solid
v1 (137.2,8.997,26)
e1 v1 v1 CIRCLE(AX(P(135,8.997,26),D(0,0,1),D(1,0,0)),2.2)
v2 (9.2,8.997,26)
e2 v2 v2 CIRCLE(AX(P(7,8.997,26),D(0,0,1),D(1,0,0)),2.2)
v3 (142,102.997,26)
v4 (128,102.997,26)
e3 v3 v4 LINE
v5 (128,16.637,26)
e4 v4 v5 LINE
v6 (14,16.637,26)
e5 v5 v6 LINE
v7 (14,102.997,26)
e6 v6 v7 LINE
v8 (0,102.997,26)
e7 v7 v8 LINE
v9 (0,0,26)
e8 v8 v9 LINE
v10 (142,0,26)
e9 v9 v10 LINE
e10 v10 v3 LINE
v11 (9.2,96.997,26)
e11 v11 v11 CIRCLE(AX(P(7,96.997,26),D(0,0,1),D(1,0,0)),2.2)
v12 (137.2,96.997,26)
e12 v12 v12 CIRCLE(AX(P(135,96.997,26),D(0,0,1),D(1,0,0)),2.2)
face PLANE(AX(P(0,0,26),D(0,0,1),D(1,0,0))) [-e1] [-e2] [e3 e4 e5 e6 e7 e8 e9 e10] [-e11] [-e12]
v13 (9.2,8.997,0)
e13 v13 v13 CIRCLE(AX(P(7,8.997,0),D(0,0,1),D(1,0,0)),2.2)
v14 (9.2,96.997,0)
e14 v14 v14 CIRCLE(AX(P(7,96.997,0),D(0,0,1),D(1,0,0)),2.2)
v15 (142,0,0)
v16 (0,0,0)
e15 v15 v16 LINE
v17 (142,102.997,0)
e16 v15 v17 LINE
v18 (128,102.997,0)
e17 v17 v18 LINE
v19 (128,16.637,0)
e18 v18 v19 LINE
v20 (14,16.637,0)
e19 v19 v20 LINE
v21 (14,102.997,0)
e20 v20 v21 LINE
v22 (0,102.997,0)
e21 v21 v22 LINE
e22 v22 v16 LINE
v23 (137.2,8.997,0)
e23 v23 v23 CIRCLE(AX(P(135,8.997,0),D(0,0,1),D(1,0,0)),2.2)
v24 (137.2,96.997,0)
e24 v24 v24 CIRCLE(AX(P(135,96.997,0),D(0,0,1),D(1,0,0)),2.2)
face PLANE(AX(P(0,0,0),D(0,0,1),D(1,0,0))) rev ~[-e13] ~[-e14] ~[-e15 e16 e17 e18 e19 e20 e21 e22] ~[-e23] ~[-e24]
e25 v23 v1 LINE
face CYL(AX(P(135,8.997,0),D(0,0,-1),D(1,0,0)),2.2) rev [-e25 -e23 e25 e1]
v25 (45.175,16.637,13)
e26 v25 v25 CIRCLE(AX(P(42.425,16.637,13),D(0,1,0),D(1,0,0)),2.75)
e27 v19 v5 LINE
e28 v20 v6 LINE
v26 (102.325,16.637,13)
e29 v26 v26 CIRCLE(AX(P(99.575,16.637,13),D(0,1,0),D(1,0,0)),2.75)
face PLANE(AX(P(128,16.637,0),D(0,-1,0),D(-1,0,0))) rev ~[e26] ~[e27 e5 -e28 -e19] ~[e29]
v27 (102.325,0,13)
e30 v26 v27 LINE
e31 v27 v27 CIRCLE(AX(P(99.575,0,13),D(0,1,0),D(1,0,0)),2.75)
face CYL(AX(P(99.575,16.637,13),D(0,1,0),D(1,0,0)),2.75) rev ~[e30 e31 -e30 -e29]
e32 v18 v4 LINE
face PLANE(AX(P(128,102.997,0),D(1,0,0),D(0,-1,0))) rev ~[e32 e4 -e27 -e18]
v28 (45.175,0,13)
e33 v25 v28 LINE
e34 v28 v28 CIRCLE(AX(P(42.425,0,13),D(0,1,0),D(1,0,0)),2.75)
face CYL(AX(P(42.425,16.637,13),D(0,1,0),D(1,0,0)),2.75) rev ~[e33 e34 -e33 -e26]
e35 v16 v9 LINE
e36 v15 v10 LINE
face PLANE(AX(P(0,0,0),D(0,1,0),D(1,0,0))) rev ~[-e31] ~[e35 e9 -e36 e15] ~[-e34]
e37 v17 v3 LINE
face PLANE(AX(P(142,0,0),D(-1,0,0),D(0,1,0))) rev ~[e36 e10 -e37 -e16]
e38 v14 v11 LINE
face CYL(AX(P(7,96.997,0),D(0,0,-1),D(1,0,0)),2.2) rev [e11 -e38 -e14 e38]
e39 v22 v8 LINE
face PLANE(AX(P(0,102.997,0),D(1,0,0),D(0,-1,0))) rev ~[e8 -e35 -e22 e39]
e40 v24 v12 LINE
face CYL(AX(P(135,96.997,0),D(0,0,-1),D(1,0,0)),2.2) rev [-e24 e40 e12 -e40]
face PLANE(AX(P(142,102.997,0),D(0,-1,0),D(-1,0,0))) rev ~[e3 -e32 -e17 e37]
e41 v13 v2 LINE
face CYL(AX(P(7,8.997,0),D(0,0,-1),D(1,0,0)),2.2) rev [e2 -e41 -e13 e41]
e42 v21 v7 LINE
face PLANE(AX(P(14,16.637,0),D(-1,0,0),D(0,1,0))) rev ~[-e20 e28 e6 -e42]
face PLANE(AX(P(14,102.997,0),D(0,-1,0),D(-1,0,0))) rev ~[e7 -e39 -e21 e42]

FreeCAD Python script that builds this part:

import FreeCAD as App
import Part
import Sketcher
Q = App.Units.Quantity

doc = App.newDocument("Part")
body = doc.addObject("PartDesign::Body", "Body")

sketch1 = body.newObject("Sketcher::SketchObject", "Sketch")
sketch1.AttachmentSupport = (doc.getObject("XY_Plane"), [""])
sketch1.MapMode = "FlatFace"
sketch1.addGeometry(Part.LineSegment(App.Vector(14, 103, 0), App.Vector(0, 103, 0)), False)
sketch1.addGeometry(Part.LineSegment(App.Vector(0, 103, 0), App.Vector(0, 0, 0)), False)
sketch1.addGeometry(Part.LineSegment(App.Vector(0, 0, 0), App.Vector(142, 0, 0)), False)
sketch1.addGeometry(Part.LineSegment(App.Vector(142, 0, 0), App.Vector(142, 103, 0)), False)
sketch1.addGeometry(Part.LineSegment(App.Vector(142, 103, 0), App.Vector(128, 103, 0)), False)
sketch1.addGeometry(Part.LineSegment(App.Vector(128, 103, 0), App.Vector(128, 16.6, 0)), False)
sketch1.addGeometry(Part.LineSegment(App.Vector(128, 16.6, 0), App.Vector(14, 16.6, 0)), False)
sketch1.addGeometry(Part.LineSegment(App.Vector(14, 16.6, 0), App.Vector(14, 103, 0)), False)
sketch1.addGeometry(Part.Circle(App.Vector(7, 9, 0), App.Vector(0, 0, 1), 2.2), False)
sketch1.addGeometry(Part.Circle(App.Vector(135, 9, 0), App.Vector(0, 0, 1), 2.2), False)
sketch1.addGeometry(Part.Circle(App.Vector(7, 97, 0), App.Vector(0, 0, 1), 2.2), False)
sketch1.addGeometry(Part.Circle(App.Vector(135, 97, 0), App.Vector(0, 0, 1), 2.2), False)
sketch1.addConstraint(Sketcher.Constraint("Coincident", 0, 2, 1, 1))
sketch1.addConstraint(Sketcher.Constraint("Coincident", 1, 2, 2, 1))
sketch1.addConstraint(Sketcher.Constraint("Coincident", 2, 2, 3, 1))
sketch1.addConstraint(Sketcher.Constraint("Coincident", 3, 2, 4, 1))
sketch1.addConstraint(Sketcher.Constraint("Coincident", 4, 2, 5, 1))
sketch1.addConstraint(Sketcher.Constraint("Coincident", 5, 2, 6, 1))
sketch1.addConstraint(Sketcher.Constraint("Coincident", 6, 2, 7, 1))
sketch1.addConstraint(Sketcher.Constraint("Coincident", 7, 2, 0, 1))
sketch1.addConstraint(Sketcher.Constraint("Horizontal", 0))
sketch1.addConstraint(Sketcher.Constraint("Vertical", 1))
sketch1.addConstraint(Sketcher.Constraint("Horizontal", 2))
sketch1.addConstraint(Sketcher.Constraint("Vertical", 3))
sketch1.addConstraint(Sketcher.Constraint("Horizontal", 4))
sketch1.addConstraint(Sketcher.Constraint("Vertical", 5))
sketch1.addConstraint(Sketcher.Constraint("Horizontal", 6))
sketch1.addConstraint(Sketcher.Constraint("Vertical", 7))
sketch1.addConstraint(Sketcher.Constraint("Coincident", 1, 2, -1, 1))
sketch1.addConstraint(Sketcher.Constraint("Equal", 8, 9))
sketch1.addConstraint(Sketcher.Constraint("Equal", 9, 10))
sketch1.addConstraint(Sketcher.Constraint("Equal", 10, 11))
sketch1.addConstraint(Sketcher.Constraint("Horizontal", 8, 3, 9, 3))
sketch1.addConstraint(Sketcher.Constraint("Horizontal", 10, 3, 11, 3))
sketch1.addConstraint(Sketcher.Constraint("Horizontal", 0, 2, 3, 2))
sketch1.addConstraint(Sketcher.Constraint("Vertical", 8, 3, 10, 3))
sketch1.addConstraint(Sketcher.Constraint("Vertical", 9, 3, 11, 3))
sketch1.addConstraint(Sketcher.Constraint("Equal", 0, 4))
sketch1.addConstraint(Sketcher.Constraint("Diameter", 8, Q("4.4 mm")))
sketch1.addConstraint(Sketcher.Constraint("DistanceX", 0, 2, 0, 1, Q("14 mm")))
sketch1.addConstraint(Sketcher.Constraint("DistanceX", 6, 2, 6, 1, Q("114 mm")))
sketch1.addConstraint(Sketcher.Constraint("DistanceX", -1, 1, 8, 3, Q("7 mm")))
sketch1.addConstraint(Sketcher.Constraint("DistanceX", 8, 3, 9, 3, Q("128 mm")))
sketch1.addConstraint(Sketcher.Constraint("DistanceY", 8, 3, 10, 3, Q("88 mm")))
sketch1.addConstraint(Sketcher.Constraint("DistanceY", 10, 3, 0, 2, Q("6 mm")))
sketch1.addConstraint(Sketcher.Constraint("DistanceY", 5, 2, 5, 1, Q("86.36 mm")))
sketch1.addConstraint(Sketcher.Constraint("DistanceY", 1, 2, 1, 1, Q("102.997 mm")))
pad1 = body.newObject("PartDesign::Pad", "Pad")
pad1.Profile = sketch1
pad1.Length = 26

sketch2 = body.newObject("Sketcher::SketchObject", "Sketch001")
sketch2.AttachmentSupport = (doc.getObject("XZ_Plane"), [""])
sketch2.MapMode = "FlatFace"
sketch2.AttachmentOffset = App.Placement(App.Vector(0, 0, -16.637), App.Rotation())
sketch2.addGeometry(Part.Circle(App.Vector(42.4, 13, 0), App.Vector(0, 0, 1), 2.8), False)
sketch2.addGeometry(Part.Circle(App.Vector(99.6, 13, 0), App.Vector(0, 0, 1), 2.8), False)
sketch2.addConstraint(Sketcher.Constraint("Equal", 0, 1))
sketch2.addConstraint(Sketcher.Constraint("Horizontal", 0, 3, 1, 3))
sketch2.addConstraint(Sketcher.Constraint("Diameter", 0, Q("5.5 mm")))
sketch2.addConstraint(Sketcher.Constraint("DistanceY", -1, 1, 0, 3, Q("13 mm")))
sketch2.addConstraint(Sketcher.Constraint("DistanceX", 0, 3, 1, 3, Q("57.15 mm")))
sketch2.addConstraint(Sketcher.Constraint("DistanceX", -1, 1, 0, 3, Q("42.425 mm")))
pocket1 = body.newObject("PartDesign::Pocket", "Pocket")
pocket1.Profile = sketch2
pocket1.Length = 26
pocket1.Reversed = True

doc.recompute()
